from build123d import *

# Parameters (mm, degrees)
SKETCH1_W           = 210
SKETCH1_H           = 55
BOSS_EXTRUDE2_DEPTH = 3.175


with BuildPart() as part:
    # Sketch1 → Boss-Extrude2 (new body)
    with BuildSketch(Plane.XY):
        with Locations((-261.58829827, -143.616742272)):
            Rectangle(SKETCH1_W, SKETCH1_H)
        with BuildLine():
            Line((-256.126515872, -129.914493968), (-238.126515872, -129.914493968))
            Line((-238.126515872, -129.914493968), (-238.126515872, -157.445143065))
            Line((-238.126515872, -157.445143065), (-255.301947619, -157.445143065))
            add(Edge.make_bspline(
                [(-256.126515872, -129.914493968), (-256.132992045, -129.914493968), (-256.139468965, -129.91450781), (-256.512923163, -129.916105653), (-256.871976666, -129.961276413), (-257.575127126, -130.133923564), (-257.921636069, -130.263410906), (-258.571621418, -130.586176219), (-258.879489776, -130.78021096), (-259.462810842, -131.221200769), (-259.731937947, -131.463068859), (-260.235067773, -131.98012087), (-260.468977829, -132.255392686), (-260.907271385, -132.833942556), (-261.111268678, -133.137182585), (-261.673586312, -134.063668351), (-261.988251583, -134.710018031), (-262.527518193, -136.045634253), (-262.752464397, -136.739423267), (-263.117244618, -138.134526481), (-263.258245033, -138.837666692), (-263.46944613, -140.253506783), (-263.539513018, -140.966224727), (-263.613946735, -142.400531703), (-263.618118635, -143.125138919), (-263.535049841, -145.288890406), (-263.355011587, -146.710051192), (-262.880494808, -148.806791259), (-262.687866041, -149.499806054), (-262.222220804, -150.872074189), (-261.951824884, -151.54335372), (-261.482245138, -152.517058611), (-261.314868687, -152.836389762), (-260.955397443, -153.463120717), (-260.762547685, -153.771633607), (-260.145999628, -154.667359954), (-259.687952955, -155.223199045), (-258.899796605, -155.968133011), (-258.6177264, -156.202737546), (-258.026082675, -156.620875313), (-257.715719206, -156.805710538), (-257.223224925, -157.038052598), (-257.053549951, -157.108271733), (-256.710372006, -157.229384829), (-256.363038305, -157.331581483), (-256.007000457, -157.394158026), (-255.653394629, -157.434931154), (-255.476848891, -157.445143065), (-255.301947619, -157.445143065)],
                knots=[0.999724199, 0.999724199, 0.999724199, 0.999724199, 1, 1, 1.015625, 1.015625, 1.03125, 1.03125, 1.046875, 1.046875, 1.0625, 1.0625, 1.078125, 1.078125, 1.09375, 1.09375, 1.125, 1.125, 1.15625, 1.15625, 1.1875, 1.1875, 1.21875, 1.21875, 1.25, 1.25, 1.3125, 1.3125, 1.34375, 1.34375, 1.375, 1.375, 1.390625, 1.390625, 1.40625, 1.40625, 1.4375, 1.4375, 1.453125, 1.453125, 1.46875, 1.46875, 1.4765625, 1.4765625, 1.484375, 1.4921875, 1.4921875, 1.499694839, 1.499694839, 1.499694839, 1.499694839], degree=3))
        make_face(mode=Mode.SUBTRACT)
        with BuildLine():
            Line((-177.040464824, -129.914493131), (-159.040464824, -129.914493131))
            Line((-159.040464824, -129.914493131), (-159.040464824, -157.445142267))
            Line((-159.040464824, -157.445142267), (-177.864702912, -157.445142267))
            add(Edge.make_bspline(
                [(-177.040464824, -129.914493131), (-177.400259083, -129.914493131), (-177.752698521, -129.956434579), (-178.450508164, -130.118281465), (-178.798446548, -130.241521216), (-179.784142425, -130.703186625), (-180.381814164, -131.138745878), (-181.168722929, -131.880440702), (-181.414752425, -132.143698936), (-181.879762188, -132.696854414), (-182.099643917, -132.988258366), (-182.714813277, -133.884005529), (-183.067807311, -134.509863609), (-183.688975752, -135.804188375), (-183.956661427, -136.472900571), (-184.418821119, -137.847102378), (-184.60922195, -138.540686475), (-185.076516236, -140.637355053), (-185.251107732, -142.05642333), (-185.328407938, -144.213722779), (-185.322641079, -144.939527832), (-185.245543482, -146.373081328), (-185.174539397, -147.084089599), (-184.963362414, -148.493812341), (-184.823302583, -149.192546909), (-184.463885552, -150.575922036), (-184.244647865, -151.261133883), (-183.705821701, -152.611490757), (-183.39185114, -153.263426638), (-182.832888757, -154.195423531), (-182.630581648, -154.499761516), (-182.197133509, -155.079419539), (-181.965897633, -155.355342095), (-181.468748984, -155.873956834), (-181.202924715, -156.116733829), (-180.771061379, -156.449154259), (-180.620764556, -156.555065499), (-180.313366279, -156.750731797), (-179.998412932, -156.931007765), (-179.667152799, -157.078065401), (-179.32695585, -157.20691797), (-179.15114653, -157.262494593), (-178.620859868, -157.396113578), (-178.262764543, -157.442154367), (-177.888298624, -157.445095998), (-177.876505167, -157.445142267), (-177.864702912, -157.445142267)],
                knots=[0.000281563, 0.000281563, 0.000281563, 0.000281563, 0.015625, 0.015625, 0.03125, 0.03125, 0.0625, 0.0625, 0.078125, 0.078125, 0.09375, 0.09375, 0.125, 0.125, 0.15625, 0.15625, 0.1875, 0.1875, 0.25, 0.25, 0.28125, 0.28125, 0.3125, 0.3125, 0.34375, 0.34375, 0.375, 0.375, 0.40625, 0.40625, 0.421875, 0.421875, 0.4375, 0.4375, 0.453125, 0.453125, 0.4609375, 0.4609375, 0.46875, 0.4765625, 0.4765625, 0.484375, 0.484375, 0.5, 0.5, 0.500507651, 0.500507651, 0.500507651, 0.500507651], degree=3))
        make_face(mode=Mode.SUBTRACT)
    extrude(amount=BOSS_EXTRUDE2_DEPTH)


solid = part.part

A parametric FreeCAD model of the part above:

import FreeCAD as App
import Part
import Sketcher
from FreeCAD import Vector
Q = App.Units.Quantity


def add_polygon(sketch, points):
    """Adds a closed chain of lines whose ends are joined by coincident constraints."""
    first, n = sketch.GeometryCount, len(points)
    for a, b in zip(points, points[1:] + points[:1]):
        sketch.addGeometry(Part.LineSegment(App.Vector(*a, 0), App.Vector(*b, 0)), False)
    for i in range(n):
        sketch.addConstraint(Sketcher.Constraint("Coincident", first + i, 2, first + (i + 1) % n, 1))

doc = App.newDocument("Part")
body = doc.addObject("PartDesign::Body", "Body")

sketch1 = body.newObject("Sketcher::SketchObject", "Sketch")
sketch1.AttachmentSupport = (doc.getObject("XY_Plane"), [""])
sketch1.MapMode = "FlatFace"
add_polygon(sketch1, [(-366.588298, -116.116742), (-366.588298, -171.116742), (-156.588298, -171.116742), (-156.588298, -116.116742)])
sketch1.addGeometry(Part.BSplineCurve([Vector(-256.126516, -129.914494, 0), Vector(-256.132992, -129.914494, 0), Vector(-256.139469, -129.914508, 0), Vector(-256.512923, -129.916106, 0), Vector(-256.871977, -129.961276, 0), Vector(-257.575127, -130.133924, 0), Vector(-257.921636, -130.263411, 0), Vector(-258.571621, -130.586176, 0), Vector(-258.87949, -130.780211, 0), Vector(-259.462811, -131.221201, 0), Vector(-259.731938, -131.463069, 0), Vector(-260.235068, -131.980121, 0), Vector(-260.468978, -132.255393, 0), Vector(-260.907271, -132.833943, 0), Vector(-261.111269, -133.137183, 0), Vector(-261.673586, -134.063668, 0), Vector(-261.988252, -134.710018, 0), Vector(-262.527518, -136.045634, 0), Vector(-262.752464, -136.739423, 0), Vector(-263.117245, -138.134526, 0), Vector(-263.258245, -138.837667, 0), Vector(-263.469446, -140.253507, 0), Vector(-263.539513, -140.966225, 0), Vector(-263.613947, -142.400532, 0), Vector(-263.618119, -143.125139, 0), Vector(-263.53505, -145.28889, 0), Vector(-263.355012, -146.710051, 0), Vector(-262.880495, -148.806791, 0), Vector(-262.687866, -149.499806, 0), Vector(-262.222221, -150.872074, 0), Vector(-261.951825, -151.543354, 0), Vector(-261.482245, -152.517059, 0), Vector(-261.314869, -152.83639, 0), Vector(-260.955397, -153.463121, 0), Vector(-260.762548, -153.771634, 0), Vector(-260.146, -154.66736, 0), Vector(-259.687953, -155.223199, 0), Vector(-258.899797, -155.968133, 0), Vector(-258.617726, -156.202738, 0), Vector(-258.026083, -156.620875, 0), Vector(-257.715719, -156.805711, 0), Vector(-257.223225, -157.038053, 0), Vector(-257.05355, -157.108272, 0), Vector(-256.710372, -157.229385, 0), Vector(-256.363038, -157.331581, 0), Vector(-256.007, -157.394158, 0), Vector(-255.653395, -157.434931, 0), Vector(-255.476849, -157.445143, 0), Vector(-255.301948, -157.445143, 0)], [4, 2, 2, 2, 2, 2, 2, 2, 2, 2, 2, 2, 2, 2, 2, 2, 2, 2, 2, 2, 2, 2, 1, 2, 4], [0.999724199, 1, 1.015625, 1.03125, 1.046875, 1.0625, 1.078125, 1.09375, 1.125, 1.15625, 1.1875, 1.21875, 1.25, 1.3125, 1.34375, 1.375, 1.390625, 1.40625, 1.4375, 1.453125, 1.46875, 1.4765625, 1.484375, 1.4921875, 1.499694839], False, 3, [1, 1, 1, 1, 1, 1, 1, 1, 1, 1, 1, 1, 1, 1, 1, 1, 1, 1, 1, 1, 1, 1, 1, 1, 1, 1, 1, 1, 1, 1, 1, 1, 1, 1, 1, 1, 1, 1, 1, 1, 1, 1, 1, 1, 1, 1, 1, 1, 1], False), False)
sketch1.addGeometry(Part.LineSegment(Vector(-256.126516, -129.914494, 0), Vector(-238.126516, -129.914494, 0)), False)
sketch1.addGeometry(Part.LineSegment(Vector(-238.126516, -129.914494, 0), Vector(-238.126516, -157.445143, 0)), False)
sketch1.addGeometry(Part.LineSegment(Vector(-238.126516, -157.445143, 0), Vector(-255.301948, -157.445143, 0)), False)
sketch1.addGeometry(Part.BSplineCurve([Vector(-177.040465, -129.914493, 0), Vector(-177.400259, -129.914493, 0), Vector(-177.752699, -129.956435, 0), Vector(-178.450508, -130.118281, 0), Vector(-178.798447, -130.241521, 0), Vector(-179.784142, -130.703187, 0), Vector(-180.381814, -131.138746, 0), Vector(-181.168723, -131.880441, 0), Vector(-181.414752, -132.143699, 0), Vector(-181.879762, -132.696854, 0), Vector(-182.099644, -132.988258, 0), Vector(-182.714813, -133.884006, 0), Vector(-183.067807, -134.509864, 0), Vector(-183.688976, -135.804188, 0), Vector(-183.956661, -136.472901, 0), Vector(-184.418821, -137.847102, 0), Vector(-184.609222, -138.540686, 0), Vector(-185.076516, -140.637355, 0), Vector(-185.251108, -142.056423, 0), Vector(-185.328408, -144.213723, 0), Vector(-185.322641, -144.939528, 0), Vector(-185.245543, -146.373081, 0), Vector(-185.174539, -147.08409, 0), Vector(-184.963362, -148.493812, 0), Vector(-184.823303, -149.192547, 0), Vector(-184.463886, -150.575922, 0), Vector(-184.244648, -151.261134, 0), Vector(-183.705822, -152.611491, 0), Vector(-183.391851, -153.263427, 0), Vector(-182.832889, -154.195424, 0), Vector(-182.630582, -154.499762, 0), Vector(-182.197134, -155.07942, 0), Vector(-181.965898, -155.355342, 0), Vector(-181.468749, -155.873957, 0), Vector(-181.202925, -156.116734, 0), Vector(-180.771061, -156.449154, 0), Vector(-180.620765, -156.555065, 0), Vector(-180.313366, -156.750732, 0), Vector(-179.998413, -156.931008, 0), Vector(-179.667153, -157.078065, 0), Vector(-179.326956, -157.206918, 0), Vector(-179.151147, -157.262495, 0), Vector(-178.62086, -157.396114, 0), Vector(-178.262765, -157.442154, 0), Vector(-177.888299, -157.445096, 0), Vector(-177.876505, -157.445142, 0), Vector(-177.864703, -157.445142, 0)], [4, 2, 2, 2, 2, 2, 2, 2, 2, 2, 2, 2, 2, 2, 2, 2, 2, 2, 2, 1, 2, 2, 2, 4], [0.000281563, 0.015625, 0.03125, 0.0625, 0.078125, 0.09375, 0.125, 0.15625, 0.1875, 0.25, 0.28125, 0.3125, 0.34375, 0.375, 0.40625, 0.421875, 0.4375, 0.453125, 0.4609375, 0.46875, 0.4765625, 0.484375, 0.5, 0.500507651], False, 3, [1, 1, 1, 1, 1, 1, 1, 1, 1, 1, 1, 1, 1, 1, 1, 1, 1, 1, 1, 1, 1, 1, 1, 1, 1, 1, 1, 1, 1, 1, 1, 1, 1, 1, 1, 1, 1, 1, 1, 1, 1, 1, 1, 1, 1, 1, 1], False), False)
sketch1.addGeometry(Part.LineSegment(Vector(-177.040465, -129.914493, 0), Vector(-159.040465, -129.914493, 0)), False)
sketch1.addGeometry(Part.LineSegment(Vector(-159.040465, -129.914493, 0), Vector(-159.040465, -157.445142, 0)), False)
sketch1.addGeometry(Part.LineSegment(Vector(-159.040465, -157.445142, 0), Vector(-177.864703, -157.445142, 0)), False)
sketch1.addConstraint(Sketcher.Constraint("Block", 4))
sketch1.addConstraint(Sketcher.Constraint("Block", 8))
sketch1.addConstraint(Sketcher.Constraint("Coincident", 4, 1, 5, 1))
sketch1.addConstraint(Sketcher.Constraint("Coincident", 5, 2, 6, 1))
sketch1.addConstraint(Sketcher.Constraint("Coincident", 6, 2, 7, 1))
sketch1.addConstraint(Sketcher.Constraint("Coincident", 7, 2, 4, 2))
sketch1.addConstraint(Sketcher.Constraint("Coincident", 8, 1, 9, 1))
sketch1.addConstraint(Sketcher.Constraint("Coincident", 9, 2, 10, 1))
sketch1.addConstraint(Sketcher.Constraint("Coincident", 10, 2, 11, 1))
sketch1.addConstraint(Sketcher.Constraint("Coincident", 11, 2, 8, 2))
sketch1.addConstraint(Sketcher.Constraint("Vertical", 0))
sketch1.addConstraint(Sketcher.Constraint("Horizontal", 1))
sketch1.addConstraint(Sketcher.Constraint("Vertical", 2))
sketch1.addConstraint(Sketcher.Constraint("Horizontal", 3))
sketch1.addConstraint(Sketcher.Constraint("Horizontal", 5))
sketch1.addConstraint(Sketcher.Constraint("Vertical", 6))
sketch1.addConstraint(Sketcher.Constraint("Horizontal", 7))
sketch1.addConstraint(Sketcher.Constraint("Horizontal", 9))
sketch1.addConstraint(Sketcher.Constraint("Vertical", 10))
sketch1.addConstraint(Sketcher.Constraint("Horizontal", 11))
sketch1.addConstraint(Sketcher.Constraint("Equal", 5, 9))
sketch1.addConstraint(Sketcher.Constraint("DistanceX", 1, 1, 1, 2, Q("210 mm")))
sketch1.addConstraint(Sketcher.Constraint("DistanceX", 5, 1, 5, 2, Q("18 mm")))
sketch1.addConstraint(Sketcher.Constraint("DistanceY", 0, 2, 0, 1, Q("55 mm")))
sketch1.addConstraint(Sketcher.Constraint("DistanceX", 0, 2, -1, 1, Q("366.588298 mm")))
sketch1.addConstraint(Sketcher.Constraint("DistanceY", 1, 2, 6, 2, Q("13.671599 mm")))
pad1 = body.newObject("PartDesign::Pad", "Pad")
pad1.Profile = sketch1
pad1.Length = 3.175

doc.recompute()
